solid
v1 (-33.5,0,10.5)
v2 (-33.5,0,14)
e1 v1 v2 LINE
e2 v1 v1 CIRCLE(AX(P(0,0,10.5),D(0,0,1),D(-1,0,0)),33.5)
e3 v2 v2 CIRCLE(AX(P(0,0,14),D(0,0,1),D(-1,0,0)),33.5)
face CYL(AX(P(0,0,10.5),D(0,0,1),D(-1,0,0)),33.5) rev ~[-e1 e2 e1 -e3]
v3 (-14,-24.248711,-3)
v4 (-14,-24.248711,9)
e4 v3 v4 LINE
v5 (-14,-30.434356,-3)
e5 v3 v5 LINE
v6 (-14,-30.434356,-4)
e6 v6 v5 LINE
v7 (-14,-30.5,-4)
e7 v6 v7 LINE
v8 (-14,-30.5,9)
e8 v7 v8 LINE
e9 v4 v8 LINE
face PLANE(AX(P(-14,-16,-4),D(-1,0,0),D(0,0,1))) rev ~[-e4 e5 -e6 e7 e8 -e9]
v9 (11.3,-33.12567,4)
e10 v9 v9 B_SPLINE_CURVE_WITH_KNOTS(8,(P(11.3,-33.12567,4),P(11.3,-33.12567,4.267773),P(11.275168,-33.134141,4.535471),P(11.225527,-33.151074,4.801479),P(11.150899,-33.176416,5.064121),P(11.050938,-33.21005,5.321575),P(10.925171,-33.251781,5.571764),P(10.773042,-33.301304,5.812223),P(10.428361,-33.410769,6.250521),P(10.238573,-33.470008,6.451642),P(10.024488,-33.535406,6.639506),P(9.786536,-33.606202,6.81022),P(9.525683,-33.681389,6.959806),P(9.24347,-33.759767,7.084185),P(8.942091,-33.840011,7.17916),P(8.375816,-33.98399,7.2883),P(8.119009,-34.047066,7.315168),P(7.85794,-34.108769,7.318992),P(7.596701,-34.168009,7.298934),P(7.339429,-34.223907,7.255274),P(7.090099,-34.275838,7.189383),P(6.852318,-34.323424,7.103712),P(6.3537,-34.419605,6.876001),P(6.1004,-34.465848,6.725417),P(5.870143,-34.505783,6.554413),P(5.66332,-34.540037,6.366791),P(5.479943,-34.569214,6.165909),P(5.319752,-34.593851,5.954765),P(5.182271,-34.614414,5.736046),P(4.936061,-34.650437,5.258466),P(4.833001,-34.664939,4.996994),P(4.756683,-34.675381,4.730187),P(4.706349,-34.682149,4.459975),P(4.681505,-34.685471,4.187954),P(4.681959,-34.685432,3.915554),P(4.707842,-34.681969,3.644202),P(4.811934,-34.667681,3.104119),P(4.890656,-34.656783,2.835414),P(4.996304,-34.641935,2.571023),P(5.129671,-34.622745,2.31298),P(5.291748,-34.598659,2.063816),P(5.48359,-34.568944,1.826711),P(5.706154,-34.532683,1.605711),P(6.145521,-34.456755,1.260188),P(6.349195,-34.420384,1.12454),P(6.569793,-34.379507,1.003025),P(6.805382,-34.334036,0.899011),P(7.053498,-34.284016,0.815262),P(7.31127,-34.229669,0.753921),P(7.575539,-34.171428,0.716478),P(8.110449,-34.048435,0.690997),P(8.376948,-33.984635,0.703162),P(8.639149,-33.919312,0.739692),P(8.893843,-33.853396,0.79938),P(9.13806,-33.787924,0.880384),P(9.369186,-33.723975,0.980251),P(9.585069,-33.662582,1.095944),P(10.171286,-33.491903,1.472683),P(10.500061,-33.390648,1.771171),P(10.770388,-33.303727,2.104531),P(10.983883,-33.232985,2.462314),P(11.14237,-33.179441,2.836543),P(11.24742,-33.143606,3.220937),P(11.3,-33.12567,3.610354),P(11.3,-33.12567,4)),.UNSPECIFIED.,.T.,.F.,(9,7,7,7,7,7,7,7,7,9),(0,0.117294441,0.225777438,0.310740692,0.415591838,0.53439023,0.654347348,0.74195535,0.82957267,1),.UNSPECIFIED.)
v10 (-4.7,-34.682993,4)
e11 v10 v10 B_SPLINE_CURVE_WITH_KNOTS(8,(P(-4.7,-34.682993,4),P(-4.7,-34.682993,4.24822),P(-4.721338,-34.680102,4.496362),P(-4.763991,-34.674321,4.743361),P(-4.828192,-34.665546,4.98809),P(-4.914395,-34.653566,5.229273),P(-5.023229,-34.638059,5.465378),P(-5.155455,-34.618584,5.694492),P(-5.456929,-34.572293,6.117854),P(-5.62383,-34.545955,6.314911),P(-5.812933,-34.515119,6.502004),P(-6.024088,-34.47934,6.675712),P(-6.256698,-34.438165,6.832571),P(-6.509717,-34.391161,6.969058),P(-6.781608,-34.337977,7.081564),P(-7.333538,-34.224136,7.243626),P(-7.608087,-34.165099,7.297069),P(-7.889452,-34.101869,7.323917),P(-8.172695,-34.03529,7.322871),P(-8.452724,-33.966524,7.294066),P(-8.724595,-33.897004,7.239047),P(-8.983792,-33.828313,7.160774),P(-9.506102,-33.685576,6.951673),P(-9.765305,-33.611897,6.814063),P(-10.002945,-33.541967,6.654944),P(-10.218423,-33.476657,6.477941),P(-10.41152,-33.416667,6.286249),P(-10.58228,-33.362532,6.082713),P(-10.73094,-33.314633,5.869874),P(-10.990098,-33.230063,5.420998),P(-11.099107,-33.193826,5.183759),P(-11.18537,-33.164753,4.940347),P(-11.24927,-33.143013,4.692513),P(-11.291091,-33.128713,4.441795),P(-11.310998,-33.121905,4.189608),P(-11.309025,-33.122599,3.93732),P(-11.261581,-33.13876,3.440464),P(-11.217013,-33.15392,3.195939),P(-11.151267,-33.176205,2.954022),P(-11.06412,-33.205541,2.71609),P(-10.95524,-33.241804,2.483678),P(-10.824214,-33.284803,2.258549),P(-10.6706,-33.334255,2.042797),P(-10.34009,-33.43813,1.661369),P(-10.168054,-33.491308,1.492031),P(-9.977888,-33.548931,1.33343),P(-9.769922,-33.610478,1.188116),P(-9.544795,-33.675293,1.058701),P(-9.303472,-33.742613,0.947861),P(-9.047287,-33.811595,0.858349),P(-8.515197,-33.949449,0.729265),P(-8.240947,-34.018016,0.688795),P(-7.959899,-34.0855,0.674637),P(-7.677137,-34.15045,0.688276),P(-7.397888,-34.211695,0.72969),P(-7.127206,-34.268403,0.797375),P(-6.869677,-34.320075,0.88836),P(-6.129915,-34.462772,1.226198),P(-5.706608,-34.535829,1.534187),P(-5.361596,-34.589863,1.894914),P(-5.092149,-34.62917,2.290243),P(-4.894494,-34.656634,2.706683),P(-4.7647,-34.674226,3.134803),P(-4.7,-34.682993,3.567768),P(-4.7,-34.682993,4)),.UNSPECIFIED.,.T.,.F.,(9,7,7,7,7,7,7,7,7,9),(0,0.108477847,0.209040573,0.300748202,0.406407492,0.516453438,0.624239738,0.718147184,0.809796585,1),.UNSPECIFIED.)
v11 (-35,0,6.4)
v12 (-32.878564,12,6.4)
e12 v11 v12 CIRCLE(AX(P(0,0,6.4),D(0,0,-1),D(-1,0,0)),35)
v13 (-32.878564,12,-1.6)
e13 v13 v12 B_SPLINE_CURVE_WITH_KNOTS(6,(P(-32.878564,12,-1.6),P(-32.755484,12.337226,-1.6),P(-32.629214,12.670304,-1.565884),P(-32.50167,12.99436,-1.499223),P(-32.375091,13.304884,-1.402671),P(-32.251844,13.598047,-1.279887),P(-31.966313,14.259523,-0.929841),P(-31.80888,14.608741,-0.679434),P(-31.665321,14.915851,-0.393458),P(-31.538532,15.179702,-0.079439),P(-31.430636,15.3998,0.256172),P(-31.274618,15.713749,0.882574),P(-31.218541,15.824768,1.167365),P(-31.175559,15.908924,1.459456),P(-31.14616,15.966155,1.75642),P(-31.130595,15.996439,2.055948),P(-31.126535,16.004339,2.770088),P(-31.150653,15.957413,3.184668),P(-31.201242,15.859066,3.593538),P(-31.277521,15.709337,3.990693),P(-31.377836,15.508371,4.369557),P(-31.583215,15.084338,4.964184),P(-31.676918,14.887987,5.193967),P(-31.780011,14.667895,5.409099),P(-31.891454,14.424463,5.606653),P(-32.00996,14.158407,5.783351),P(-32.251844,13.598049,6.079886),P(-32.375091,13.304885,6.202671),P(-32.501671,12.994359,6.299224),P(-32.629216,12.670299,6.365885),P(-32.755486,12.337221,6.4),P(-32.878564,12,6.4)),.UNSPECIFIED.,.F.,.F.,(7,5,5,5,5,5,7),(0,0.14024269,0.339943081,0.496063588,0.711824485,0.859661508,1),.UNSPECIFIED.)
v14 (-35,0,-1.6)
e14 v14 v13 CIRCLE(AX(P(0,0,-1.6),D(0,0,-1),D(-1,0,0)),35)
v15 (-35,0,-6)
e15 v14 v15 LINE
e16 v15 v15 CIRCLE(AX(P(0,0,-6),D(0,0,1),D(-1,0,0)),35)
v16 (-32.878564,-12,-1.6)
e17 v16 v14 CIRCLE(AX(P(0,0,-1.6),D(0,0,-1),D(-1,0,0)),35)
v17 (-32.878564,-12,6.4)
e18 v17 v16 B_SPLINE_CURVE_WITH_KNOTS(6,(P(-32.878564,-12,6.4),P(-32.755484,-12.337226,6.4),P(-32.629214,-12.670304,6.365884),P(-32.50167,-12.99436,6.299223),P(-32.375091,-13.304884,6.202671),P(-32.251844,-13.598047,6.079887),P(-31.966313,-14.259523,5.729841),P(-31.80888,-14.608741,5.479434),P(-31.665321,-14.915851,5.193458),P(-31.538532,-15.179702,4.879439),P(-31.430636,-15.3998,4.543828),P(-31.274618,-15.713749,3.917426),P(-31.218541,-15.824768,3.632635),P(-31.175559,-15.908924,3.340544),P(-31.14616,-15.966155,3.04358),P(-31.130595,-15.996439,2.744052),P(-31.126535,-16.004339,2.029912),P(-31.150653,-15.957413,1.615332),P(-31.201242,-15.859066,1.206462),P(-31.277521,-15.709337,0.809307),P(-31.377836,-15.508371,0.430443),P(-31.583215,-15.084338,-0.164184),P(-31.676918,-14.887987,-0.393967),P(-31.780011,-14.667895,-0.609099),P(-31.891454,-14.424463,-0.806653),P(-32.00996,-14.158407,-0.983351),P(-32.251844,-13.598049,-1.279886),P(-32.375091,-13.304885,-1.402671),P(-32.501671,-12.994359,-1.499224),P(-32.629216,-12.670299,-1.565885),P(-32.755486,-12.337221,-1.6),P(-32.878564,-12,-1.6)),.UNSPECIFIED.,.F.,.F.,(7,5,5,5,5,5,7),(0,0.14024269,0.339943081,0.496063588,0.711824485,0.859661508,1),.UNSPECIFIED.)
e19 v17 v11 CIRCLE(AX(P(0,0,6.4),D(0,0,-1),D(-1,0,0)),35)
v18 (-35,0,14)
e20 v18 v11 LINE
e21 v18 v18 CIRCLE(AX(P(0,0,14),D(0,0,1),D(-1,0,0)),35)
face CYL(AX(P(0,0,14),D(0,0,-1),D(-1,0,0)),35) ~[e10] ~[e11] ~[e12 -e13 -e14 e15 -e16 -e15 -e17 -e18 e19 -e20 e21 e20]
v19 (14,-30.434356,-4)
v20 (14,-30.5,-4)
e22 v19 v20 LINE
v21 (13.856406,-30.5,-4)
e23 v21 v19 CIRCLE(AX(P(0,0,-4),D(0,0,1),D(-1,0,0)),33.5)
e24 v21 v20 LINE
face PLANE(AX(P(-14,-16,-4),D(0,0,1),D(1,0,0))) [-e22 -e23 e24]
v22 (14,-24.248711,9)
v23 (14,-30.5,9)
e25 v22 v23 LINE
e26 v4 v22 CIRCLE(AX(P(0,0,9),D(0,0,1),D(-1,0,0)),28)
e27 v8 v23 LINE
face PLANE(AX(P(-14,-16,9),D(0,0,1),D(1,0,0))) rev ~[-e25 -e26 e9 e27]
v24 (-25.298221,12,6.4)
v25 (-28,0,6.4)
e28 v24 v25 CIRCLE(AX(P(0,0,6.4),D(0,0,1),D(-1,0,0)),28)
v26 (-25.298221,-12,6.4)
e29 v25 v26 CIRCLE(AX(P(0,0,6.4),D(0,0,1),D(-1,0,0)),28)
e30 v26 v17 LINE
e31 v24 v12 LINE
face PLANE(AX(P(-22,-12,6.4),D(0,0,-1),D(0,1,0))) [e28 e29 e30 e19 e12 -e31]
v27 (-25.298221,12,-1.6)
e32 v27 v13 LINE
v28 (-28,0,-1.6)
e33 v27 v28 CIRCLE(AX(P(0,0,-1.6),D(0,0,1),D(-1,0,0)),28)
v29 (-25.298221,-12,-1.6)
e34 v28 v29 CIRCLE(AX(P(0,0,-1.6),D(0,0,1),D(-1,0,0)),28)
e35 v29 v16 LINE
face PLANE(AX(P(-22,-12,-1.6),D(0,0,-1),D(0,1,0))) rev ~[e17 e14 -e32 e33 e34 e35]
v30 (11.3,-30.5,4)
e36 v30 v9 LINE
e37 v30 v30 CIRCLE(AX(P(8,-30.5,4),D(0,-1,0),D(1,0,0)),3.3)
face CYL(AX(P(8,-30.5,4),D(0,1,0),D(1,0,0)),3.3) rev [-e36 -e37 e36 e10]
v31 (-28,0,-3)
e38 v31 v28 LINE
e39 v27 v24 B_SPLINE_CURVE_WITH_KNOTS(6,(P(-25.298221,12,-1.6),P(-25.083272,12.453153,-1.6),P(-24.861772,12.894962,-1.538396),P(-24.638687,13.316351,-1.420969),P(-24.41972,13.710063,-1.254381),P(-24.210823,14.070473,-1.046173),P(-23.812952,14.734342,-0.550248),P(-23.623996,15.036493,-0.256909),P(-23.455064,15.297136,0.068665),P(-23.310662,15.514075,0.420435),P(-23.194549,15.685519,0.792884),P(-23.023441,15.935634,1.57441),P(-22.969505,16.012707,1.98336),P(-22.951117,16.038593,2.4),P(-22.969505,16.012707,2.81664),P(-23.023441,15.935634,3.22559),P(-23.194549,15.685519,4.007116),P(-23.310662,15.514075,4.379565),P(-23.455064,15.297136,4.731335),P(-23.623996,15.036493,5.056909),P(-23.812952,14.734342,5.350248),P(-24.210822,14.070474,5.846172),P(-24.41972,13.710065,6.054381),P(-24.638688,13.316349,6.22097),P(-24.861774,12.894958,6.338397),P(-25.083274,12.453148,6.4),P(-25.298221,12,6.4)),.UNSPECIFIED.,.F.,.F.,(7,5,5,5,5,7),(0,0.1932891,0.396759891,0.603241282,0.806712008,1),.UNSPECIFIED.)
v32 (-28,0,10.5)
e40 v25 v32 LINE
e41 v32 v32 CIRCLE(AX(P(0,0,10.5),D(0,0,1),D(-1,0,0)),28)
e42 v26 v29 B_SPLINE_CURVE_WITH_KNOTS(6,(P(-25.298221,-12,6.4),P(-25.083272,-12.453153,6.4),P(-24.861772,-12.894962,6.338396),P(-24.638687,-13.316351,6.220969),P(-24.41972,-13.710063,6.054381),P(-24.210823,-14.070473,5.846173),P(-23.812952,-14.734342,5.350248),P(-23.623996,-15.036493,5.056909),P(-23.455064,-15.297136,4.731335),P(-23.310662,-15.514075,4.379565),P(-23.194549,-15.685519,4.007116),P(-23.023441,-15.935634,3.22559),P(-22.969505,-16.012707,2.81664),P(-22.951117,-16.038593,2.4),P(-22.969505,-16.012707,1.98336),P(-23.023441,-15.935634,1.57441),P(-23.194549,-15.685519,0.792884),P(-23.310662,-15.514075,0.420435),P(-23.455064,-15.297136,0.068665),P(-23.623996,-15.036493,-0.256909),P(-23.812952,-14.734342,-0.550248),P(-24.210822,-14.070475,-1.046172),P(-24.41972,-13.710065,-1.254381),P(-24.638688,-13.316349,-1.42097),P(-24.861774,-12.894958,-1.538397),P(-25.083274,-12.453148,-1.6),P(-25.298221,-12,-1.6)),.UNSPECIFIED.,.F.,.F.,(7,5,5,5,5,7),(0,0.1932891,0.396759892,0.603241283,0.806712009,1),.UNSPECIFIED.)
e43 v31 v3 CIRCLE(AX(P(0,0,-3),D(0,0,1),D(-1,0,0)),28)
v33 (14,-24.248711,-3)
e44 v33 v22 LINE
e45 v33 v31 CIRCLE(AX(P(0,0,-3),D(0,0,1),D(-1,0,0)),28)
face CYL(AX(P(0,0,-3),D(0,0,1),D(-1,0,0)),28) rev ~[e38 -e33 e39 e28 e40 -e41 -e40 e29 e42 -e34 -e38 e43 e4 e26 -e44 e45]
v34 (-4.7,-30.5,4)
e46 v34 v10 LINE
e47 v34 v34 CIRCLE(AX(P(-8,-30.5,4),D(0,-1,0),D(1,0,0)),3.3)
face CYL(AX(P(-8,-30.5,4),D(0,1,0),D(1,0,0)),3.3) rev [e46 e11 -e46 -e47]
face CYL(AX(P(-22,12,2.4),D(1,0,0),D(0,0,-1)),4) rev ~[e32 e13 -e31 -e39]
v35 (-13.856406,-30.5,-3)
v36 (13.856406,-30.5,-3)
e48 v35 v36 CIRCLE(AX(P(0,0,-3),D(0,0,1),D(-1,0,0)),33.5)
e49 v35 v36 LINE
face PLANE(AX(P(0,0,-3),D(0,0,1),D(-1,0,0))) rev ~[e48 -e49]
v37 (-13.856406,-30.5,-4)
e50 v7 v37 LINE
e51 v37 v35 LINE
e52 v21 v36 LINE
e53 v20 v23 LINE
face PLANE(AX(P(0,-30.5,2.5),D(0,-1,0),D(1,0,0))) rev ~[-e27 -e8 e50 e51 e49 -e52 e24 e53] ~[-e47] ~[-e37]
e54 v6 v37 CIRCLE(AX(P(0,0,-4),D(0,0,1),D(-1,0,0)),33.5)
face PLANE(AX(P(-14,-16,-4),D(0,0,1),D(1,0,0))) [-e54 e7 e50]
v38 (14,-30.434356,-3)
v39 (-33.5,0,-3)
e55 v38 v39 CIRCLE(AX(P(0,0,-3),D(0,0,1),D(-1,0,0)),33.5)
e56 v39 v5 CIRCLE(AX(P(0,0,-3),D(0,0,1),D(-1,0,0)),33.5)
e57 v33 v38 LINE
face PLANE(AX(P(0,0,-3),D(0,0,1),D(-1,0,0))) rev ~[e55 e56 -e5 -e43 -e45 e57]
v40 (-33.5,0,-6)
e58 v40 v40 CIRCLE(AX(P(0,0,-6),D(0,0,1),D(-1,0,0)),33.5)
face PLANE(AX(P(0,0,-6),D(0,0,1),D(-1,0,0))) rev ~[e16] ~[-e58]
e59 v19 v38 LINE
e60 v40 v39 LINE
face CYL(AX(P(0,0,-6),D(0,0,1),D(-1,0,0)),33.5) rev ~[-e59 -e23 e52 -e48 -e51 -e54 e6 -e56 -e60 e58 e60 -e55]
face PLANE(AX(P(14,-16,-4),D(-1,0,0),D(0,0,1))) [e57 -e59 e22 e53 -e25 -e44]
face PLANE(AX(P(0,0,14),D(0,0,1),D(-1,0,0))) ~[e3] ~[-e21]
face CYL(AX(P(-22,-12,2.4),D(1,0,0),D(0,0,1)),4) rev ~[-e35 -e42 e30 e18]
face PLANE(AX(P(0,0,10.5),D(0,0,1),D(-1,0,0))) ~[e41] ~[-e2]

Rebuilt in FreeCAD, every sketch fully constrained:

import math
import FreeCAD as App
import Part
import Sketcher
Q = App.Units.Quantity


def add_polygon(sketch, points):
    """Adds a closed chain of lines whose ends are joined by coincident constraints."""
    first, n = sketch.GeometryCount, len(points)
    for a, b in zip(points, points[1:] + points[:1]):
        sketch.addGeometry(Part.LineSegment(App.Vector(*a, 0), App.Vector(*b, 0)), False)
    for i in range(n):
        sketch.addConstraint(Sketcher.Constraint("Coincident", first + i, 2, first + (i + 1) % n, 1))

doc = App.newDocument("Part")
params = doc.addObject("Spreadsheet::Sheet", "Params")
for row, (alias, value) in enumerate([
    ("sketch1_width", "28 mm"),
    ("sketch1_height", "13 mm"),
    ("pad1_length", "14.5 mm"),
    ("sketch2_diameter", "6.6 mm"),
    ("pad2_length", "10 mm"),
    ("sketch3_radius", "4 mm"),
    ("sketch3_width", "24 mm"),
    ("pad3_length", "16 mm"),
    ("sketch4_height", "3 mm"),
    ("sketch4_height2", "20 mm"),
    ("sketch4_width", "1.5 mm"),
    ("sketch4_width2", "5.5 mm"),
    ("sketch4_height3", "13.5 mm"),
    ("revolution_angle", "360 deg"),
], start=1):
    params.set(f"A{row}", alias)
    params.set(f"B{row}", "=" + value)
    params.setAlias(f"B{row}", alias)

body = doc.addObject("PartDesign::Body", "Body")

# Sketch on XZ plane
sketch1 = doc.addObject("Sketcher::SketchObject", "Sketch")
body.addObject(sketch1)
sketch1.AttachmentSupport = (doc.XZ_Plane, [""])
sketch1.MapMode = "FlatFace"
add_polygon(sketch1, [(-14, 9), (-14, -4), (14, -4), (14, 9)])  # lines 0-3
sketch1.addConstraint([
    Sketcher.Constraint("Vertical", 0),
    Sketcher.Constraint("Horizontal", 1),
    Sketcher.Constraint("Vertical", 2),
    Sketcher.Constraint("Horizontal", 3),
    Sketcher.Constraint("DistanceX", 1, 1, 1, 2, Q("28 mm")),
    Sketcher.Constraint("DistanceY", 0, 2, 0, 1, Q("13 mm")),
    Sketcher.Constraint("DistanceX", 0, 2, -1, 1, Q("14 mm")),
    Sketcher.Constraint("DistanceY", 0, 2, -1, 1, Q("4 mm")),
])
sketch1.setExpression("Constraints[8]", "Params.sketch1_width")
sketch1.setExpression("Constraints[9]", "Params.sketch1_height")
pad1 = doc.addObject("PartDesign::Pad", "Pad")
body.addObject(pad1)
pad1.Profile = sketch1
pad1.setExpression("Length", "Params.pad1_length")

# Sketch on XZ plane
sketch2 = doc.addObject("Sketcher::SketchObject", "Sketch001")
body.addObject(sketch2)
sketch2.AttachmentSupport = (doc.XZ_Plane, [""])
sketch2.MapMode = "FlatFace"
sketch2.AttachmentOffset = App.Placement(App.Vector(0, 0, 14.5), App.Rotation())
sketch2.addGeometry([
    Part.Circle(App.Vector(-8, 4, 0), App.Vector(0, 0, 1), 3.3),
    Part.Circle(App.Vector(8, 4, 0), App.Vector(0, 0, 1), 3.3),
], False)
sketch2.addConstraint([
    Sketcher.Constraint("Equal", 0, 1),
    Sketcher.Constraint("Symmetric", 0, 3, 1, 3, -2),
    Sketcher.Constraint("Diameter", 0, Q("6.6 mm")),
    Sketcher.Constraint("DistanceX", 0, 3, -1, 1, Q("8 mm")),
    Sketcher.Constraint("DistanceY", -1, 1, 0, 3, Q("4 mm")),
])
sketch2.setExpression("Constraints[2]", "Params.sketch2_diameter")
pad2 = doc.addObject("PartDesign::Pad", "Pad001")
body.addObject(pad2)
pad2.Profile = sketch2
pad2.setExpression("Length", "Params.pad2_length")
body2 = doc.addObject("PartDesign::Body", "Body001")
doc.recompute()

body.Placement = App.Placement(App.Vector(0, -16, 0), App.Rotation(App.Vector(0, 0, 1), 0))
boolean = doc.addObject("PartDesign::Boolean", "Boolean")
body2.addObject(boolean)
boolean.Type = "Fuse"
boolean.addObjects([body])
body3 = doc.addObject("PartDesign::Body", "Body002")

# Sketch on YZ plane
sketch3 = doc.addObject("Sketcher::SketchObject", "Sketch002")
body3.addObject(sketch3)
sketch3.AttachmentSupport = (doc.getObject("YZ_Plane002"), [""])
sketch3.MapMode = "FlatFace"
sketch3.addGeometry([
    Part.ArcOfCircle(Part.Circle(App.Vector(-12, 2.4, 0), App.Vector(0, 0, 1), 4), math.radians(90), math.radians(270)),
    Part.LineSegment(App.Vector(-12, -1.6, 0), App.Vector(12, -1.6, 0)),
    Part.ArcOfCircle(Part.Circle(App.Vector(12, 2.4, 0), App.Vector(0, 0, 1), 4), math.radians(-90), math.radians(90)),
    Part.LineSegment(App.Vector(12, 6.4, 0), App.Vector(-12, 6.4, 0)),
], False)
sketch3.addConstraint([
    Sketcher.Constraint("Tangent", 0, 2, 1, 1),
    Sketcher.Constraint("Tangent", 1, 2, 2, 1),
    Sketcher.Constraint("Tangent", 2, 2, 3, 1),
    Sketcher.Constraint("Tangent", 3, 2, 0, 1),
    Sketcher.Constraint("Horizontal", 1),
    Sketcher.Constraint("Horizontal", 3),
    Sketcher.Constraint("Radius", 0, Q("4 mm")),
    Sketcher.Constraint("DistanceX", 1, 1, 1, 2, Q("24 mm")),
    Sketcher.Constraint("DistanceX", 0, 3, -1, 1, Q("12 mm")),
    Sketcher.Constraint("DistanceY", -1, 1, 0, 3, Q("2.4 mm")),
])
sketch3.setExpression("Constraints[6]", "Params.sketch3_radius")
sketch3.setExpression("Constraints[7]", "Params.sketch3_width")
pad3 = doc.addObject("PartDesign::Pad", "Pad002")
body3.addObject(pad3)
pad3.Profile = sketch3
pad3.setExpression("Length", "Params.pad3_length")
pad3.Reversed = True
body4 = doc.addObject("PartDesign::Body", "Body003")
doc.recompute()

body3.Placement = App.Placement(App.Vector(-22, 0, 0), App.Rotation(App.Vector(0, 0, 1), 0))
boolean2 = doc.addObject("PartDesign::Boolean", "Boolean001")
body4.addObject(boolean2)
boolean2.Type = "Fuse"
boolean2.addObjects([body3])
body5 = doc.addObject("PartDesign::Body", "Body004")

# Sketch on XZ plane
sketch4 = doc.addObject("Sketcher::SketchObject", "Sketch003")
body5.addObject(sketch4)
sketch4.AttachmentSupport = (doc.getObject("XZ_Plane004"), [""])
sketch4.MapMode = "FlatFace"
add_polygon(sketch4, [(-35, -6), (-33.5, -6), (-33.5, -3), (-28, -3), (-28, 10.5), (-33.5, 10.5), (-33.5, 14), (-35, 14)])  # lines 0-7
sketch4.addConstraint([
    Sketcher.Constraint("Horizontal", 0),
    Sketcher.Constraint("Vertical", 1),
    Sketcher.Constraint("Horizontal", 2),
    Sketcher.Constraint("Vertical", 3),
    Sketcher.Constraint("Horizontal", 4),
    Sketcher.Constraint("Vertical", 5),
    Sketcher.Constraint("Horizontal", 6),
    Sketcher.Constraint("Vertical", 7),
    Sketcher.Constraint("Vertical", 1, 2, 4, 2),
    Sketcher.Constraint("DistanceY", 1, 1, 1, 2, Q("3 mm")),
    Sketcher.Constraint("DistanceY", 7, 2, 7, 1, Q("20 mm")),
    Sketcher.Constraint("DistanceX", 0, 1, 0, 2, Q("1.5 mm")),
    Sketcher.Constraint("DistanceX", 2, 1, 2, 2, Q("5.5 mm")),
    Sketcher.Constraint("DistanceY", 3, 1, 3, 2, Q("13.5 mm")),
    Sketcher.Constraint("DistanceY", 0, 2, -1, 1, Q("6 mm")),
    Sketcher.Constraint("DistanceX", 2, 2, -1, 1, Q("28 mm")),
])
sketch4.setExpression("Constraints[17]", "Params.sketch4_height")
sketch4.setExpression("Constraints[18]", "Params.sketch4_height2")
sketch4.setExpression("Constraints[19]", "Params.sketch4_width")
sketch4.setExpression("Constraints[20]", "Params.sketch4_width2")
sketch4.setExpression("Constraints[21]", "Params.sketch4_height3")
revolution = doc.addObject("PartDesign::Revolution", "Revolution")
body5.addObject(revolution)
revolution.Profile = sketch4
revolution.ReferenceAxis = (sketch4, ["V_Axis"])
revolution.setExpression("Angle", "Params.revolution_angle")
doc.recompute()

boolean3 = doc.addObject("PartDesign::Boolean", "Boolean002")
body5.addObject(boolean3)
boolean3.Type = "Cut"
boolean3.addObjects([body2])
doc.recompute()

boolean4 = doc.addObject("PartDesign::Boolean", "Boolean003")
body5.addObject(boolean4)
boolean4.Type = "Cut"
boolean4.addObjects([body4])

doc.recompute()
